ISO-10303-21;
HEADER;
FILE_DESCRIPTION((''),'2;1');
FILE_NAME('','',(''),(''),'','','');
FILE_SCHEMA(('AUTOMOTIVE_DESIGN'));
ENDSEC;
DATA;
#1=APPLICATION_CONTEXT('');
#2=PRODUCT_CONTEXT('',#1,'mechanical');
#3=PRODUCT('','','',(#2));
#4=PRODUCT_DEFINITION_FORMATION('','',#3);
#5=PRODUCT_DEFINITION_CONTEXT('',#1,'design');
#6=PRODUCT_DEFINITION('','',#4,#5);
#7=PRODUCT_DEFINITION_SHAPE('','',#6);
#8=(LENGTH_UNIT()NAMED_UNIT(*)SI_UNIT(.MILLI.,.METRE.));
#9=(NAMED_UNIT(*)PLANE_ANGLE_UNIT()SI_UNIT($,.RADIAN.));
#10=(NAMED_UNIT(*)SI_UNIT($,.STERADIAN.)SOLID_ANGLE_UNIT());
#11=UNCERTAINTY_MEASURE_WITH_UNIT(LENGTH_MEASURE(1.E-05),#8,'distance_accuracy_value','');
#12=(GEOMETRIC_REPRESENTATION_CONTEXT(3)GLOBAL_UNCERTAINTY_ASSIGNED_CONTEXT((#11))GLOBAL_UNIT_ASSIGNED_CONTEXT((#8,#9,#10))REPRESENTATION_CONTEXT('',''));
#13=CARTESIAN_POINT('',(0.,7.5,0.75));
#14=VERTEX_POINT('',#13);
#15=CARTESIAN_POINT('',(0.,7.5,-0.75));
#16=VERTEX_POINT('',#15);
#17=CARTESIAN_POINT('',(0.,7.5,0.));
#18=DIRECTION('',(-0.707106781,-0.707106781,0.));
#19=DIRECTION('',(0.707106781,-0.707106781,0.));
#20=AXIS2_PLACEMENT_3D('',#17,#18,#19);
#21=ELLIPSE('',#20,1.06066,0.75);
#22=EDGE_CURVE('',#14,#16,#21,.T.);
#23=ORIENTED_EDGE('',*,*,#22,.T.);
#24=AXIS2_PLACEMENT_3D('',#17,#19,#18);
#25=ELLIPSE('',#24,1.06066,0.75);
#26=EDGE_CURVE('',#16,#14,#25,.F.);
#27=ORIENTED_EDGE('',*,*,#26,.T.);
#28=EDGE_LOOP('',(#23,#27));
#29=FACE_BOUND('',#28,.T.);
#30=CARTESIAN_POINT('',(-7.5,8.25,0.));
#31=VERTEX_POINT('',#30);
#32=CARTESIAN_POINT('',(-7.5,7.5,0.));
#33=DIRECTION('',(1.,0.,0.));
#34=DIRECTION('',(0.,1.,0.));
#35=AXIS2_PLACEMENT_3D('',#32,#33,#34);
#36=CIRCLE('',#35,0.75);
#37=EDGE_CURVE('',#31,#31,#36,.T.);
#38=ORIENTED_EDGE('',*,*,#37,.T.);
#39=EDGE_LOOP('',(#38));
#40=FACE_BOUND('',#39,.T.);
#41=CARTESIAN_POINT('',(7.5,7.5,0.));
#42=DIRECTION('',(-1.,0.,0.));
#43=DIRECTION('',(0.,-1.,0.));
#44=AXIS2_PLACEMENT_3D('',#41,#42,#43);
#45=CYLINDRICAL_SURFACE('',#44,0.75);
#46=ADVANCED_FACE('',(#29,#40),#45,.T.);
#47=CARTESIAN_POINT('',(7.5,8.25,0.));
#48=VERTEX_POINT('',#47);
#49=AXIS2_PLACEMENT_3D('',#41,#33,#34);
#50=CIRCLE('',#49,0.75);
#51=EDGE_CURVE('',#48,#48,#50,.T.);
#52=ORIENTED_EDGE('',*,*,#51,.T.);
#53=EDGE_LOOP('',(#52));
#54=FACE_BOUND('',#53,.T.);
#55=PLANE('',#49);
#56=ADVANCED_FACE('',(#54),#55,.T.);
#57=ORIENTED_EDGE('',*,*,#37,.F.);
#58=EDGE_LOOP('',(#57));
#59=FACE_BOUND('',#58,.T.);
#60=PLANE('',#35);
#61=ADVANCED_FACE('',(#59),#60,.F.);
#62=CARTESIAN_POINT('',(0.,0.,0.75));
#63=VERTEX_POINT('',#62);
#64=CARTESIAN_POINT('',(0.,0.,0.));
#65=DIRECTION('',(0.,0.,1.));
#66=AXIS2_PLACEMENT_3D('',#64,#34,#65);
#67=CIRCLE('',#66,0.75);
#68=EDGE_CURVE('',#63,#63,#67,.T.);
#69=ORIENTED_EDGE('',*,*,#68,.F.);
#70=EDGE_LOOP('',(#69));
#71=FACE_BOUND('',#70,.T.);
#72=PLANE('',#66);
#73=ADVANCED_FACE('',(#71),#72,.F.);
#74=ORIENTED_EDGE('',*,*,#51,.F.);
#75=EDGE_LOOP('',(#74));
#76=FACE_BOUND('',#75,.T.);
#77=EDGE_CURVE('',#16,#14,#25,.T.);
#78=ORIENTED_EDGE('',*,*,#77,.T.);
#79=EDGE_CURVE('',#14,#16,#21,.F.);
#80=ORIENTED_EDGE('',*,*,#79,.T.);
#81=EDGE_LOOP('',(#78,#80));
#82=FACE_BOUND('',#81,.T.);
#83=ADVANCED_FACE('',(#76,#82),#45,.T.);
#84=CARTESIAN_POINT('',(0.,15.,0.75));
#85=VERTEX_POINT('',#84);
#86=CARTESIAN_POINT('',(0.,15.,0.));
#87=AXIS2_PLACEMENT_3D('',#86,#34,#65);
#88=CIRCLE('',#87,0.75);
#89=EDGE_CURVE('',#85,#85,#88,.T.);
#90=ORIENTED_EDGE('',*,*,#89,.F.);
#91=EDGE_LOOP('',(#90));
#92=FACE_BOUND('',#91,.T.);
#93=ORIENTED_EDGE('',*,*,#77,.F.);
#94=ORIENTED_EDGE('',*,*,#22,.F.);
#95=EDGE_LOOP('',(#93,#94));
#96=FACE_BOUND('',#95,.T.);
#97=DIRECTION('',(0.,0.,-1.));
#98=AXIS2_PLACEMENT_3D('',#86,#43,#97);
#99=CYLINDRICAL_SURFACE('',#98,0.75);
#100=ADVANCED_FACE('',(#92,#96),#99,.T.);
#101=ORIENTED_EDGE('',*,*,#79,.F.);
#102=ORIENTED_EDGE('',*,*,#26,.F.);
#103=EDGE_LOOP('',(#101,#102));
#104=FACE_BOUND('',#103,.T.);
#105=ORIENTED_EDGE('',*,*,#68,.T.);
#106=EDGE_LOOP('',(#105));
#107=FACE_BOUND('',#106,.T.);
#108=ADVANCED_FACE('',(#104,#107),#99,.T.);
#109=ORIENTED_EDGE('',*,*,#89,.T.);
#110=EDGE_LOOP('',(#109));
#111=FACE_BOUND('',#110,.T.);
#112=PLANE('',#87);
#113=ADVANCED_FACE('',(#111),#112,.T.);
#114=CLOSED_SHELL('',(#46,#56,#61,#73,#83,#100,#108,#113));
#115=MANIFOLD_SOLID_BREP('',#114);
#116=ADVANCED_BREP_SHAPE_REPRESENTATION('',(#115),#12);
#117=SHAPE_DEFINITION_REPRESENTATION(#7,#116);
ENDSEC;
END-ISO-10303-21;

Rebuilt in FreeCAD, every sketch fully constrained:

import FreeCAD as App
import Part
import Sketcher
from FreeCAD import Vector
Q = App.Units.Quantity

doc = App.newDocument("Part")
body = doc.addObject("PartDesign::Body", "Body")

# Sketch on XZ plane
sketch1 = body.newObject("Sketcher::SketchObject", "Sketch")
sketch1.AttachmentSupport = (doc.getObject("XZ_Plane"), [""])
sketch1.MapMode = "FlatFace"
sketch1.addGeometry(Part.Circle(Vector(0, 0, 0), Vector(0, 0, 1), 0.8), False)
sketch1.addConstraint([
    Sketcher.Constraint("Coincident", 0, 3, -1, 1),
    Sketcher.Constraint("Diameter", 0, Q("1.5 mm")),
])
pad1 = body.newObject("PartDesign::Pad", "Pad")
pad1.Profile = sketch1
pad1.Length = 15
pad1.Reversed = True

# Sketch on YZ plane
sketch2 = body.newObject("Sketcher::SketchObject", "Sketch001")
sketch2.AttachmentSupport = (doc.getObject("YZ_Plane"), [""])
sketch2.MapMode = "FlatFace"
sketch2.AttachmentOffset = App.Placement(Vector(0, 0, -7.5), App.Rotation())
sketch2.addGeometry(Part.Circle(Vector(7.5, 0, 0), Vector(0, 0, 1), 0.8), False)
sketch2.addConstraint([
    Sketcher.Constraint("PointOnObject", 0, 3, -1),
    Sketcher.Constraint("Diameter", 0, Q("1.5 mm")),
    Sketcher.Constraint("DistanceX", -1, 1, 0, 3, Q("7.5 mm")),
])
pad2 = body.newObject("PartDesign::Pad", "Pad001")
pad2.Profile = sketch2
pad2.Length = 15

doc.recompute()
